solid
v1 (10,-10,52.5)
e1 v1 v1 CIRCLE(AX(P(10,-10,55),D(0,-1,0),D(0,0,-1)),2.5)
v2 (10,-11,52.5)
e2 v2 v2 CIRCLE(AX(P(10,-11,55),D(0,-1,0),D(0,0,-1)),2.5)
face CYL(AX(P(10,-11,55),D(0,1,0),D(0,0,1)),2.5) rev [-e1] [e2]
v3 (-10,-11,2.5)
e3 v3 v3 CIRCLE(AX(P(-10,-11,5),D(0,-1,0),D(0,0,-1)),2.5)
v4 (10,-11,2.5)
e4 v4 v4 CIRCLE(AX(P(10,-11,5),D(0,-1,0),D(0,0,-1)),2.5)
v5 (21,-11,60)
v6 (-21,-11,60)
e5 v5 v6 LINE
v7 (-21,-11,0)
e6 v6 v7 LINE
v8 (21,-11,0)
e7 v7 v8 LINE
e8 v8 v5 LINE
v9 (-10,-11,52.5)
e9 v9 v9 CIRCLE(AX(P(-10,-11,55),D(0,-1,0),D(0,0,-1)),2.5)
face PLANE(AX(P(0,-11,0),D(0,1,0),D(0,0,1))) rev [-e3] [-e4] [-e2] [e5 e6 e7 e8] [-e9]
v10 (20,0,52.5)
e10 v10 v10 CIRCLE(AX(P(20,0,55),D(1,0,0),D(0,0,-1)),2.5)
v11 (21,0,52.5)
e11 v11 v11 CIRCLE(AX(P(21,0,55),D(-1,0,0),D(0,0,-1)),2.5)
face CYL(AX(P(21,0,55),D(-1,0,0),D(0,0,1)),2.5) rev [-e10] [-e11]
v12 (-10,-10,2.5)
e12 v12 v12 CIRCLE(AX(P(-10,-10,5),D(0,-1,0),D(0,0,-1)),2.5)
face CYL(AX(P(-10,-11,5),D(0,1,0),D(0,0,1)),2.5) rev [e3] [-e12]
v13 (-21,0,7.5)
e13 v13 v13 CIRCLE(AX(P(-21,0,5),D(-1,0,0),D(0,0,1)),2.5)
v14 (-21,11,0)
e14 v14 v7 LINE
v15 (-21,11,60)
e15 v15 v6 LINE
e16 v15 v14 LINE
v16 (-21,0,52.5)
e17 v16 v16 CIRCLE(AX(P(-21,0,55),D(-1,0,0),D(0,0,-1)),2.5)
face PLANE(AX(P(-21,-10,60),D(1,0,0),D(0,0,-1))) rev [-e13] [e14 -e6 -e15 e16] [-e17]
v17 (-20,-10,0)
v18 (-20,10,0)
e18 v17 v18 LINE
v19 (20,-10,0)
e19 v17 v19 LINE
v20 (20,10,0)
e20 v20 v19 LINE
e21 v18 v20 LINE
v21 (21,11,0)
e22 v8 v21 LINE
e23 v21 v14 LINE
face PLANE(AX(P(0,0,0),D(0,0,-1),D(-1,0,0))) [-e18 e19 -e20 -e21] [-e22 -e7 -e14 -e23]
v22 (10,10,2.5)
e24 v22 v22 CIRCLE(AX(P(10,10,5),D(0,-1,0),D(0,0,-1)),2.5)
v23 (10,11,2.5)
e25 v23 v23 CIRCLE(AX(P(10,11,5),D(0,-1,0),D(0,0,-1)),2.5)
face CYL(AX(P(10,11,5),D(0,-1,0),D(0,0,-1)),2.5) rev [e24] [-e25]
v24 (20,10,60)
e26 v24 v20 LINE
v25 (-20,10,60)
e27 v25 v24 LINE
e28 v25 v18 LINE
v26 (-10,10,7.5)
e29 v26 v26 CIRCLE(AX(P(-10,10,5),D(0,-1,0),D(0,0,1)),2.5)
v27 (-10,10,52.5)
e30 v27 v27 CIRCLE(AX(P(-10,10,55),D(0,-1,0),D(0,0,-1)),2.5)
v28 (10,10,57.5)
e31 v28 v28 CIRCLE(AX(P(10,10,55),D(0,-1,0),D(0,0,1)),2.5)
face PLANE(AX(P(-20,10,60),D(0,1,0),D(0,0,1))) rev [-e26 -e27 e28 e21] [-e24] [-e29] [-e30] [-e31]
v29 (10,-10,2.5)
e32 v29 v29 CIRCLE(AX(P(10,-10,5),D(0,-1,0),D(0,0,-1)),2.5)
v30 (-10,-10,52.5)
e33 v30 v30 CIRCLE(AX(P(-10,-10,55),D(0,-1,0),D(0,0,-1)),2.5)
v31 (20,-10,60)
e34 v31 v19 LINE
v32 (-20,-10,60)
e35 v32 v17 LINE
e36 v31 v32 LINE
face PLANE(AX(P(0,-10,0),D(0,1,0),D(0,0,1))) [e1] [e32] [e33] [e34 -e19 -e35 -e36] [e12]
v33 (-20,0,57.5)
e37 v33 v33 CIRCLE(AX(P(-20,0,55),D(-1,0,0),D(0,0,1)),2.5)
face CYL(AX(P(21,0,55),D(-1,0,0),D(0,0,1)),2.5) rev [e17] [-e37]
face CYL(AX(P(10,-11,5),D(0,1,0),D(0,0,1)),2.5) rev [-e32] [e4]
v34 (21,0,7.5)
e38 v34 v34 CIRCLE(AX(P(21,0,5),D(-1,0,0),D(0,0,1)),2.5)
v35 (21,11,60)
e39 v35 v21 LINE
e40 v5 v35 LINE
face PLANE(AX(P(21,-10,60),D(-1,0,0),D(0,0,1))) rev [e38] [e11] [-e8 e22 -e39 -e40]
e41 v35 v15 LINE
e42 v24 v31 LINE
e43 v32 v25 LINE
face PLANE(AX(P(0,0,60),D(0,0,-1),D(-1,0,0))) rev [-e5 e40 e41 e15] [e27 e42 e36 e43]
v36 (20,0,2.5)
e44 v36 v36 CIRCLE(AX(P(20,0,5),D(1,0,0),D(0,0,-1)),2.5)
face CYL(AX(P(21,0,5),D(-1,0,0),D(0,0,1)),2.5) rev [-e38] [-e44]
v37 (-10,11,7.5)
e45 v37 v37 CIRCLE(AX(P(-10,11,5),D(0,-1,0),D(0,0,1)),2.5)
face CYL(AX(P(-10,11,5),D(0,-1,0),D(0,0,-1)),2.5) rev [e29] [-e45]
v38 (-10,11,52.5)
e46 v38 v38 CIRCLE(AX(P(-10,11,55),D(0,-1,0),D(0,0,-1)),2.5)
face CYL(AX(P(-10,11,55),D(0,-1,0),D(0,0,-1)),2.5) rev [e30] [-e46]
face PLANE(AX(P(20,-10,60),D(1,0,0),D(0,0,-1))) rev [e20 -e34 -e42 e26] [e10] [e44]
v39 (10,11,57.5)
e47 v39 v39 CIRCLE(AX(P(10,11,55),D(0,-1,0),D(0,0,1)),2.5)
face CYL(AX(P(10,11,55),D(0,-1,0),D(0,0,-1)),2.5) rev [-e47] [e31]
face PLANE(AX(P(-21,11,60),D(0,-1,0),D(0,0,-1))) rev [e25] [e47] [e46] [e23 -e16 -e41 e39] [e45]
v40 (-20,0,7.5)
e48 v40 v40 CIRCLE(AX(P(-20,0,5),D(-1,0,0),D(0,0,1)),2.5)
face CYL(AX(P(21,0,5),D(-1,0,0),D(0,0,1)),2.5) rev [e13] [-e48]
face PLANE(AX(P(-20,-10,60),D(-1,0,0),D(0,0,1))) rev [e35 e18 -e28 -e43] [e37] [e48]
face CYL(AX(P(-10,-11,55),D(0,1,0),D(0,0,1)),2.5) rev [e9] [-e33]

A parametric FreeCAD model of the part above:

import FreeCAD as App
import Part
import Sketcher
Q = App.Units.Quantity

doc = App.newDocument("Part")
body = doc.addObject("PartDesign::Body", "Body")

sketch1 = body.newObject("Sketcher::SketchObject", "Sketch")
sketch1.AttachmentSupport = (doc.getObject("XY_Plane"), [""])
sketch1.MapMode = "FlatFace"
sketch1.addGeometry(Part.LineSegment(App.Vector(-20, -10, 0), App.Vector(-20, 10, 0)), False)
sketch1.addGeometry(Part.LineSegment(App.Vector(-20, 10, 0), App.Vector(20, 10, 0)), False)
sketch1.addGeometry(Part.LineSegment(App.Vector(20, 10, 0), App.Vector(20, -10, 0)), False)
sketch1.addGeometry(Part.LineSegment(App.Vector(20, -10, 0), App.Vector(21, -10, 0)), False)
sketch1.addGeometry(Part.LineSegment(App.Vector(21, -10, 0), App.Vector(21, 11, 0)), False)
sketch1.addGeometry(Part.LineSegment(App.Vector(21, 11, 0), App.Vector(-21, 11, 0)), False)
sketch1.addGeometry(Part.LineSegment(App.Vector(-21, 11, 0), App.Vector(-21, -10, 0)), False)
sketch1.addGeometry(Part.LineSegment(App.Vector(-21, -10, 0), App.Vector(-20, -10, 0)), False)
sketch1.addConstraint(Sketcher.Constraint("Coincident", 0, 2, 1, 1))
sketch1.addConstraint(Sketcher.Constraint("Coincident", 1, 2, 2, 1))
sketch1.addConstraint(Sketcher.Constraint("Coincident", 2, 2, 3, 1))
sketch1.addConstraint(Sketcher.Constraint("Coincident", 3, 2, 4, 1))
sketch1.addConstraint(Sketcher.Constraint("Coincident", 4, 2, 5, 1))
sketch1.addConstraint(Sketcher.Constraint("Coincident", 5, 2, 6, 1))
sketch1.addConstraint(Sketcher.Constraint("Coincident", 6, 2, 7, 1))
sketch1.addConstraint(Sketcher.Constraint("Coincident", 7, 2, 0, 1))
sketch1.addConstraint(Sketcher.Constraint("Vertical", 0))
sketch1.addConstraint(Sketcher.Constraint("Horizontal", 1))
sketch1.addConstraint(Sketcher.Constraint("Vertical", 2))
sketch1.addConstraint(Sketcher.Constraint("Horizontal", 3))
sketch1.addConstraint(Sketcher.Constraint("Vertical", 4))
sketch1.addConstraint(Sketcher.Constraint("Horizontal", 5))
sketch1.addConstraint(Sketcher.Constraint("Vertical", 6))
sketch1.addConstraint(Sketcher.Constraint("Horizontal", 7))
sketch1.addConstraint(Sketcher.Constraint("Symmetric", 0, 2, 2, 2, -1, 1))
sketch1.addConstraint(Sketcher.Constraint("Symmetric", 3, 2, 6, 2, -2))
sketch1.addConstraint(Sketcher.Constraint("DistanceX", 1, 1, 1, 2, Q("40 mm")))
sketch1.addConstraint(Sketcher.Constraint("DistanceX", 3, 1, 3, 2, Q("1 mm")))
sketch1.addConstraint(Sketcher.Constraint("DistanceY", 0, 1, 0, 2, Q("20 mm")))
sketch1.addConstraint(Sketcher.Constraint("DistanceY", 4, 1, 4, 2, Q("21 mm")))
pad1 = body.newObject("PartDesign::Pad", "Pad")
pad1.Profile = sketch1
pad1.Length = 60

sketch2 = body.newObject("Sketcher::SketchObject", "Sketch001")
sketch2.AttachmentSupport = (doc.getObject("XZ_Plane"), [""])
sketch2.MapMode = "FlatFace"
sketch2.AttachmentOffset = App.Placement(App.Vector(0, 0, -10), App.Rotation())
sketch2.addGeometry(Part.Circle(App.Vector(-10, 5, 0), App.Vector(0, 0, 1), 2.5), False)
sketch2.addGeometry(Part.Circle(App.Vector(10, 5, 0), App.Vector(0, 0, 1), 2.5), False)
sketch2.addGeometry(Part.Circle(App.Vector(10, 55, 0), App.Vector(0, 0, 1), 2.5), False)
sketch2.addGeometry(Part.Circle(App.Vector(-10, 55, 0), App.Vector(0, 0, 1), 2.5), False)
sketch2.addConstraint(Sketcher.Constraint("Equal", 0, 1))
sketch2.addConstraint(Sketcher.Constraint("Equal", 1, 2))
sketch2.addConstraint(Sketcher.Constraint("Equal", 2, 3))
sketch2.addConstraint(Sketcher.Constraint("Symmetric", 0, 3, 1, 3, -2))
sketch2.addConstraint(Sketcher.Constraint("Symmetric", 2, 3, 3, 3, -2))
sketch2.addConstraint(Sketcher.Constraint("Vertical", 1, 3, 2, 3))
sketch2.addConstraint(Sketcher.Constraint("Diameter", 0, Q("5 mm")))
sketch2.addConstraint(Sketcher.Constraint("DistanceX", 0, 3, -1, 1, Q("10 mm")))
sketch2.addConstraint(Sketcher.Constraint("DistanceY", -1, 1, 0, 3, Q("5 mm")))
sketch2.addConstraint(Sketcher.Constraint("DistanceY", -1, 1, 2, 3, Q("55 mm")))
pocket1 = body.newObject("PartDesign::Pocket", "Pocket")
pocket1.Profile = sketch2
pocket1.Type = "ThroughAll"

sketch3 = body.newObject("Sketcher::SketchObject", "Sketch002")
sketch3.AttachmentSupport = (doc.getObject("YZ_Plane"), [""])
sketch3.MapMode = "FlatFace"
sketch3.AttachmentOffset = App.Placement(App.Vector(0, 0, 20), App.Rotation())
sketch3.addGeometry(Part.Circle(App.Vector(0, 5, 0), App.Vector(0, 0, 1), 2.5), False)
sketch3.addGeometry(Part.Circle(App.Vector(0, 55, 0), App.Vector(0, 0, 1), 2.5), False)
sketch3.addConstraint(Sketcher.Constraint("Equal", 0, 1))
sketch3.addConstraint(Sketcher.Constraint("PointOnObject", 0, 3, -2))
sketch3.addConstraint(Sketcher.Constraint("PointOnObject", 1, 3, -2))
sketch3.addConstraint(Sketcher.Constraint("Diameter", 0, Q("5 mm")))
sketch3.addConstraint(Sketcher.Constraint("DistanceY", -1, 1, 0, 3, Q("5 mm")))
sketch3.addConstraint(Sketcher.Constraint("DistanceY", -1, 1, 1, 3, Q("55 mm")))
pocket2 = body.newObject("PartDesign::Pocket", "Pocket001")
pocket2.Profile = sketch3
pocket2.Type = "ThroughAll"
pocket2.Midplane = True

sketch4 = body.newObject("Sketcher::SketchObject", "Sketch003")
sketch4.AttachmentSupport = (doc.getObject("XZ_Plane"), [""])
sketch4.MapMode = "FlatFace"
sketch4.AttachmentOffset = App.Placement(App.Vector(0, 0, 10), App.Rotation())
sketch4.addGeometry(Part.LineSegment(App.Vector(-21, 60, 0), App.Vector(-21, 0, 0)), False)
sketch4.addGeometry(Part.LineSegment(App.Vector(-21, 0, 0), App.Vector(21, 0, 0)), False)
sketch4.addGeometry(Part.LineSegment(App.Vector(21, 0, 0), App.Vector(21, 60, 0)), False)
sketch4.addGeometry(Part.LineSegment(App.Vector(21, 60, 0), App.Vector(-21, 60, 0)), False)
sketch4.addGeometry(Part.Circle(App.Vector(-10, 5, 0), App.Vector(0, 0, 1), 2.5), False)
sketch4.addGeometry(Part.Circle(App.Vector(10, 5, 0), App.Vector(0, 0, 1), 2.5), False)
sketch4.addGeometry(Part.Circle(App.Vector(-10, 55, 0), App.Vector(0, 0, 1), 2.5), False)
sketch4.addGeometry(Part.Circle(App.Vector(10, 55, 0), App.Vector(0, 0, 1), 2.5), False)
sketch4.addConstraint(Sketcher.Constraint("Coincident", 0, 2, 1, 1))
sketch4.addConstraint(Sketcher.Constraint("Coincident", 1, 2, 2, 1))
sketch4.addConstraint(Sketcher.Constraint("Coincident", 2, 2, 3, 1))
sketch4.addConstraint(Sketcher.Constraint("Coincident", 3, 2, 0, 1))
sketch4.addConstraint(Sketcher.Constraint("Vertical", 0))
sketch4.addConstraint(Sketcher.Constraint("Horizontal", 1))
sketch4.addConstraint(Sketcher.Constraint("Vertical", 2))
sketch4.addConstraint(Sketcher.Constraint("Horizontal", 3))
sketch4.addConstraint(Sketcher.Constraint("Equal", 4, 5))
sketch4.addConstraint(Sketcher.Constraint("Equal", 5, 6))
sketch4.addConstraint(Sketcher.Constraint("Equal", 6, 7))
sketch4.addConstraint(Sketcher.Constraint("Symmetric", 0, 2, 1, 2, -1, 1))
sketch4.addConstraint(Sketcher.Constraint("Symmetric", 4, 3, 5, 3, -2))
sketch4.addConstraint(Sketcher.Constraint("Symmetric", 6, 3, 7, 3, -2))
sketch4.addConstraint(Sketcher.Constraint("Vertical", 4, 3, 6, 3))
sketch4.addConstraint(Sketcher.Constraint("Diameter", 4, Q("5 mm")))
sketch4.addConstraint(Sketcher.Constraint("DistanceX", 1, 1, 1, 2, Q("42 mm")))
sketch4.addConstraint(Sketcher.Constraint("DistanceY", 0, 2, 0, 1, Q("60 mm")))
sketch4.addConstraint(Sketcher.Constraint("DistanceX", 4, 3, -1, 1, Q("10 mm")))
sketch4.addConstraint(Sketcher.Constraint("DistanceY", -1, 1, 4, 3, Q("5 mm")))
sketch4.addConstraint(Sketcher.Constraint("DistanceY", -1, 1, 6, 3, Q("55 mm")))
pad2 = body.newObject("PartDesign::Pad", "Pad001")
pad2.Profile = sketch4
pad2.Length = 1

doc.recompute()
